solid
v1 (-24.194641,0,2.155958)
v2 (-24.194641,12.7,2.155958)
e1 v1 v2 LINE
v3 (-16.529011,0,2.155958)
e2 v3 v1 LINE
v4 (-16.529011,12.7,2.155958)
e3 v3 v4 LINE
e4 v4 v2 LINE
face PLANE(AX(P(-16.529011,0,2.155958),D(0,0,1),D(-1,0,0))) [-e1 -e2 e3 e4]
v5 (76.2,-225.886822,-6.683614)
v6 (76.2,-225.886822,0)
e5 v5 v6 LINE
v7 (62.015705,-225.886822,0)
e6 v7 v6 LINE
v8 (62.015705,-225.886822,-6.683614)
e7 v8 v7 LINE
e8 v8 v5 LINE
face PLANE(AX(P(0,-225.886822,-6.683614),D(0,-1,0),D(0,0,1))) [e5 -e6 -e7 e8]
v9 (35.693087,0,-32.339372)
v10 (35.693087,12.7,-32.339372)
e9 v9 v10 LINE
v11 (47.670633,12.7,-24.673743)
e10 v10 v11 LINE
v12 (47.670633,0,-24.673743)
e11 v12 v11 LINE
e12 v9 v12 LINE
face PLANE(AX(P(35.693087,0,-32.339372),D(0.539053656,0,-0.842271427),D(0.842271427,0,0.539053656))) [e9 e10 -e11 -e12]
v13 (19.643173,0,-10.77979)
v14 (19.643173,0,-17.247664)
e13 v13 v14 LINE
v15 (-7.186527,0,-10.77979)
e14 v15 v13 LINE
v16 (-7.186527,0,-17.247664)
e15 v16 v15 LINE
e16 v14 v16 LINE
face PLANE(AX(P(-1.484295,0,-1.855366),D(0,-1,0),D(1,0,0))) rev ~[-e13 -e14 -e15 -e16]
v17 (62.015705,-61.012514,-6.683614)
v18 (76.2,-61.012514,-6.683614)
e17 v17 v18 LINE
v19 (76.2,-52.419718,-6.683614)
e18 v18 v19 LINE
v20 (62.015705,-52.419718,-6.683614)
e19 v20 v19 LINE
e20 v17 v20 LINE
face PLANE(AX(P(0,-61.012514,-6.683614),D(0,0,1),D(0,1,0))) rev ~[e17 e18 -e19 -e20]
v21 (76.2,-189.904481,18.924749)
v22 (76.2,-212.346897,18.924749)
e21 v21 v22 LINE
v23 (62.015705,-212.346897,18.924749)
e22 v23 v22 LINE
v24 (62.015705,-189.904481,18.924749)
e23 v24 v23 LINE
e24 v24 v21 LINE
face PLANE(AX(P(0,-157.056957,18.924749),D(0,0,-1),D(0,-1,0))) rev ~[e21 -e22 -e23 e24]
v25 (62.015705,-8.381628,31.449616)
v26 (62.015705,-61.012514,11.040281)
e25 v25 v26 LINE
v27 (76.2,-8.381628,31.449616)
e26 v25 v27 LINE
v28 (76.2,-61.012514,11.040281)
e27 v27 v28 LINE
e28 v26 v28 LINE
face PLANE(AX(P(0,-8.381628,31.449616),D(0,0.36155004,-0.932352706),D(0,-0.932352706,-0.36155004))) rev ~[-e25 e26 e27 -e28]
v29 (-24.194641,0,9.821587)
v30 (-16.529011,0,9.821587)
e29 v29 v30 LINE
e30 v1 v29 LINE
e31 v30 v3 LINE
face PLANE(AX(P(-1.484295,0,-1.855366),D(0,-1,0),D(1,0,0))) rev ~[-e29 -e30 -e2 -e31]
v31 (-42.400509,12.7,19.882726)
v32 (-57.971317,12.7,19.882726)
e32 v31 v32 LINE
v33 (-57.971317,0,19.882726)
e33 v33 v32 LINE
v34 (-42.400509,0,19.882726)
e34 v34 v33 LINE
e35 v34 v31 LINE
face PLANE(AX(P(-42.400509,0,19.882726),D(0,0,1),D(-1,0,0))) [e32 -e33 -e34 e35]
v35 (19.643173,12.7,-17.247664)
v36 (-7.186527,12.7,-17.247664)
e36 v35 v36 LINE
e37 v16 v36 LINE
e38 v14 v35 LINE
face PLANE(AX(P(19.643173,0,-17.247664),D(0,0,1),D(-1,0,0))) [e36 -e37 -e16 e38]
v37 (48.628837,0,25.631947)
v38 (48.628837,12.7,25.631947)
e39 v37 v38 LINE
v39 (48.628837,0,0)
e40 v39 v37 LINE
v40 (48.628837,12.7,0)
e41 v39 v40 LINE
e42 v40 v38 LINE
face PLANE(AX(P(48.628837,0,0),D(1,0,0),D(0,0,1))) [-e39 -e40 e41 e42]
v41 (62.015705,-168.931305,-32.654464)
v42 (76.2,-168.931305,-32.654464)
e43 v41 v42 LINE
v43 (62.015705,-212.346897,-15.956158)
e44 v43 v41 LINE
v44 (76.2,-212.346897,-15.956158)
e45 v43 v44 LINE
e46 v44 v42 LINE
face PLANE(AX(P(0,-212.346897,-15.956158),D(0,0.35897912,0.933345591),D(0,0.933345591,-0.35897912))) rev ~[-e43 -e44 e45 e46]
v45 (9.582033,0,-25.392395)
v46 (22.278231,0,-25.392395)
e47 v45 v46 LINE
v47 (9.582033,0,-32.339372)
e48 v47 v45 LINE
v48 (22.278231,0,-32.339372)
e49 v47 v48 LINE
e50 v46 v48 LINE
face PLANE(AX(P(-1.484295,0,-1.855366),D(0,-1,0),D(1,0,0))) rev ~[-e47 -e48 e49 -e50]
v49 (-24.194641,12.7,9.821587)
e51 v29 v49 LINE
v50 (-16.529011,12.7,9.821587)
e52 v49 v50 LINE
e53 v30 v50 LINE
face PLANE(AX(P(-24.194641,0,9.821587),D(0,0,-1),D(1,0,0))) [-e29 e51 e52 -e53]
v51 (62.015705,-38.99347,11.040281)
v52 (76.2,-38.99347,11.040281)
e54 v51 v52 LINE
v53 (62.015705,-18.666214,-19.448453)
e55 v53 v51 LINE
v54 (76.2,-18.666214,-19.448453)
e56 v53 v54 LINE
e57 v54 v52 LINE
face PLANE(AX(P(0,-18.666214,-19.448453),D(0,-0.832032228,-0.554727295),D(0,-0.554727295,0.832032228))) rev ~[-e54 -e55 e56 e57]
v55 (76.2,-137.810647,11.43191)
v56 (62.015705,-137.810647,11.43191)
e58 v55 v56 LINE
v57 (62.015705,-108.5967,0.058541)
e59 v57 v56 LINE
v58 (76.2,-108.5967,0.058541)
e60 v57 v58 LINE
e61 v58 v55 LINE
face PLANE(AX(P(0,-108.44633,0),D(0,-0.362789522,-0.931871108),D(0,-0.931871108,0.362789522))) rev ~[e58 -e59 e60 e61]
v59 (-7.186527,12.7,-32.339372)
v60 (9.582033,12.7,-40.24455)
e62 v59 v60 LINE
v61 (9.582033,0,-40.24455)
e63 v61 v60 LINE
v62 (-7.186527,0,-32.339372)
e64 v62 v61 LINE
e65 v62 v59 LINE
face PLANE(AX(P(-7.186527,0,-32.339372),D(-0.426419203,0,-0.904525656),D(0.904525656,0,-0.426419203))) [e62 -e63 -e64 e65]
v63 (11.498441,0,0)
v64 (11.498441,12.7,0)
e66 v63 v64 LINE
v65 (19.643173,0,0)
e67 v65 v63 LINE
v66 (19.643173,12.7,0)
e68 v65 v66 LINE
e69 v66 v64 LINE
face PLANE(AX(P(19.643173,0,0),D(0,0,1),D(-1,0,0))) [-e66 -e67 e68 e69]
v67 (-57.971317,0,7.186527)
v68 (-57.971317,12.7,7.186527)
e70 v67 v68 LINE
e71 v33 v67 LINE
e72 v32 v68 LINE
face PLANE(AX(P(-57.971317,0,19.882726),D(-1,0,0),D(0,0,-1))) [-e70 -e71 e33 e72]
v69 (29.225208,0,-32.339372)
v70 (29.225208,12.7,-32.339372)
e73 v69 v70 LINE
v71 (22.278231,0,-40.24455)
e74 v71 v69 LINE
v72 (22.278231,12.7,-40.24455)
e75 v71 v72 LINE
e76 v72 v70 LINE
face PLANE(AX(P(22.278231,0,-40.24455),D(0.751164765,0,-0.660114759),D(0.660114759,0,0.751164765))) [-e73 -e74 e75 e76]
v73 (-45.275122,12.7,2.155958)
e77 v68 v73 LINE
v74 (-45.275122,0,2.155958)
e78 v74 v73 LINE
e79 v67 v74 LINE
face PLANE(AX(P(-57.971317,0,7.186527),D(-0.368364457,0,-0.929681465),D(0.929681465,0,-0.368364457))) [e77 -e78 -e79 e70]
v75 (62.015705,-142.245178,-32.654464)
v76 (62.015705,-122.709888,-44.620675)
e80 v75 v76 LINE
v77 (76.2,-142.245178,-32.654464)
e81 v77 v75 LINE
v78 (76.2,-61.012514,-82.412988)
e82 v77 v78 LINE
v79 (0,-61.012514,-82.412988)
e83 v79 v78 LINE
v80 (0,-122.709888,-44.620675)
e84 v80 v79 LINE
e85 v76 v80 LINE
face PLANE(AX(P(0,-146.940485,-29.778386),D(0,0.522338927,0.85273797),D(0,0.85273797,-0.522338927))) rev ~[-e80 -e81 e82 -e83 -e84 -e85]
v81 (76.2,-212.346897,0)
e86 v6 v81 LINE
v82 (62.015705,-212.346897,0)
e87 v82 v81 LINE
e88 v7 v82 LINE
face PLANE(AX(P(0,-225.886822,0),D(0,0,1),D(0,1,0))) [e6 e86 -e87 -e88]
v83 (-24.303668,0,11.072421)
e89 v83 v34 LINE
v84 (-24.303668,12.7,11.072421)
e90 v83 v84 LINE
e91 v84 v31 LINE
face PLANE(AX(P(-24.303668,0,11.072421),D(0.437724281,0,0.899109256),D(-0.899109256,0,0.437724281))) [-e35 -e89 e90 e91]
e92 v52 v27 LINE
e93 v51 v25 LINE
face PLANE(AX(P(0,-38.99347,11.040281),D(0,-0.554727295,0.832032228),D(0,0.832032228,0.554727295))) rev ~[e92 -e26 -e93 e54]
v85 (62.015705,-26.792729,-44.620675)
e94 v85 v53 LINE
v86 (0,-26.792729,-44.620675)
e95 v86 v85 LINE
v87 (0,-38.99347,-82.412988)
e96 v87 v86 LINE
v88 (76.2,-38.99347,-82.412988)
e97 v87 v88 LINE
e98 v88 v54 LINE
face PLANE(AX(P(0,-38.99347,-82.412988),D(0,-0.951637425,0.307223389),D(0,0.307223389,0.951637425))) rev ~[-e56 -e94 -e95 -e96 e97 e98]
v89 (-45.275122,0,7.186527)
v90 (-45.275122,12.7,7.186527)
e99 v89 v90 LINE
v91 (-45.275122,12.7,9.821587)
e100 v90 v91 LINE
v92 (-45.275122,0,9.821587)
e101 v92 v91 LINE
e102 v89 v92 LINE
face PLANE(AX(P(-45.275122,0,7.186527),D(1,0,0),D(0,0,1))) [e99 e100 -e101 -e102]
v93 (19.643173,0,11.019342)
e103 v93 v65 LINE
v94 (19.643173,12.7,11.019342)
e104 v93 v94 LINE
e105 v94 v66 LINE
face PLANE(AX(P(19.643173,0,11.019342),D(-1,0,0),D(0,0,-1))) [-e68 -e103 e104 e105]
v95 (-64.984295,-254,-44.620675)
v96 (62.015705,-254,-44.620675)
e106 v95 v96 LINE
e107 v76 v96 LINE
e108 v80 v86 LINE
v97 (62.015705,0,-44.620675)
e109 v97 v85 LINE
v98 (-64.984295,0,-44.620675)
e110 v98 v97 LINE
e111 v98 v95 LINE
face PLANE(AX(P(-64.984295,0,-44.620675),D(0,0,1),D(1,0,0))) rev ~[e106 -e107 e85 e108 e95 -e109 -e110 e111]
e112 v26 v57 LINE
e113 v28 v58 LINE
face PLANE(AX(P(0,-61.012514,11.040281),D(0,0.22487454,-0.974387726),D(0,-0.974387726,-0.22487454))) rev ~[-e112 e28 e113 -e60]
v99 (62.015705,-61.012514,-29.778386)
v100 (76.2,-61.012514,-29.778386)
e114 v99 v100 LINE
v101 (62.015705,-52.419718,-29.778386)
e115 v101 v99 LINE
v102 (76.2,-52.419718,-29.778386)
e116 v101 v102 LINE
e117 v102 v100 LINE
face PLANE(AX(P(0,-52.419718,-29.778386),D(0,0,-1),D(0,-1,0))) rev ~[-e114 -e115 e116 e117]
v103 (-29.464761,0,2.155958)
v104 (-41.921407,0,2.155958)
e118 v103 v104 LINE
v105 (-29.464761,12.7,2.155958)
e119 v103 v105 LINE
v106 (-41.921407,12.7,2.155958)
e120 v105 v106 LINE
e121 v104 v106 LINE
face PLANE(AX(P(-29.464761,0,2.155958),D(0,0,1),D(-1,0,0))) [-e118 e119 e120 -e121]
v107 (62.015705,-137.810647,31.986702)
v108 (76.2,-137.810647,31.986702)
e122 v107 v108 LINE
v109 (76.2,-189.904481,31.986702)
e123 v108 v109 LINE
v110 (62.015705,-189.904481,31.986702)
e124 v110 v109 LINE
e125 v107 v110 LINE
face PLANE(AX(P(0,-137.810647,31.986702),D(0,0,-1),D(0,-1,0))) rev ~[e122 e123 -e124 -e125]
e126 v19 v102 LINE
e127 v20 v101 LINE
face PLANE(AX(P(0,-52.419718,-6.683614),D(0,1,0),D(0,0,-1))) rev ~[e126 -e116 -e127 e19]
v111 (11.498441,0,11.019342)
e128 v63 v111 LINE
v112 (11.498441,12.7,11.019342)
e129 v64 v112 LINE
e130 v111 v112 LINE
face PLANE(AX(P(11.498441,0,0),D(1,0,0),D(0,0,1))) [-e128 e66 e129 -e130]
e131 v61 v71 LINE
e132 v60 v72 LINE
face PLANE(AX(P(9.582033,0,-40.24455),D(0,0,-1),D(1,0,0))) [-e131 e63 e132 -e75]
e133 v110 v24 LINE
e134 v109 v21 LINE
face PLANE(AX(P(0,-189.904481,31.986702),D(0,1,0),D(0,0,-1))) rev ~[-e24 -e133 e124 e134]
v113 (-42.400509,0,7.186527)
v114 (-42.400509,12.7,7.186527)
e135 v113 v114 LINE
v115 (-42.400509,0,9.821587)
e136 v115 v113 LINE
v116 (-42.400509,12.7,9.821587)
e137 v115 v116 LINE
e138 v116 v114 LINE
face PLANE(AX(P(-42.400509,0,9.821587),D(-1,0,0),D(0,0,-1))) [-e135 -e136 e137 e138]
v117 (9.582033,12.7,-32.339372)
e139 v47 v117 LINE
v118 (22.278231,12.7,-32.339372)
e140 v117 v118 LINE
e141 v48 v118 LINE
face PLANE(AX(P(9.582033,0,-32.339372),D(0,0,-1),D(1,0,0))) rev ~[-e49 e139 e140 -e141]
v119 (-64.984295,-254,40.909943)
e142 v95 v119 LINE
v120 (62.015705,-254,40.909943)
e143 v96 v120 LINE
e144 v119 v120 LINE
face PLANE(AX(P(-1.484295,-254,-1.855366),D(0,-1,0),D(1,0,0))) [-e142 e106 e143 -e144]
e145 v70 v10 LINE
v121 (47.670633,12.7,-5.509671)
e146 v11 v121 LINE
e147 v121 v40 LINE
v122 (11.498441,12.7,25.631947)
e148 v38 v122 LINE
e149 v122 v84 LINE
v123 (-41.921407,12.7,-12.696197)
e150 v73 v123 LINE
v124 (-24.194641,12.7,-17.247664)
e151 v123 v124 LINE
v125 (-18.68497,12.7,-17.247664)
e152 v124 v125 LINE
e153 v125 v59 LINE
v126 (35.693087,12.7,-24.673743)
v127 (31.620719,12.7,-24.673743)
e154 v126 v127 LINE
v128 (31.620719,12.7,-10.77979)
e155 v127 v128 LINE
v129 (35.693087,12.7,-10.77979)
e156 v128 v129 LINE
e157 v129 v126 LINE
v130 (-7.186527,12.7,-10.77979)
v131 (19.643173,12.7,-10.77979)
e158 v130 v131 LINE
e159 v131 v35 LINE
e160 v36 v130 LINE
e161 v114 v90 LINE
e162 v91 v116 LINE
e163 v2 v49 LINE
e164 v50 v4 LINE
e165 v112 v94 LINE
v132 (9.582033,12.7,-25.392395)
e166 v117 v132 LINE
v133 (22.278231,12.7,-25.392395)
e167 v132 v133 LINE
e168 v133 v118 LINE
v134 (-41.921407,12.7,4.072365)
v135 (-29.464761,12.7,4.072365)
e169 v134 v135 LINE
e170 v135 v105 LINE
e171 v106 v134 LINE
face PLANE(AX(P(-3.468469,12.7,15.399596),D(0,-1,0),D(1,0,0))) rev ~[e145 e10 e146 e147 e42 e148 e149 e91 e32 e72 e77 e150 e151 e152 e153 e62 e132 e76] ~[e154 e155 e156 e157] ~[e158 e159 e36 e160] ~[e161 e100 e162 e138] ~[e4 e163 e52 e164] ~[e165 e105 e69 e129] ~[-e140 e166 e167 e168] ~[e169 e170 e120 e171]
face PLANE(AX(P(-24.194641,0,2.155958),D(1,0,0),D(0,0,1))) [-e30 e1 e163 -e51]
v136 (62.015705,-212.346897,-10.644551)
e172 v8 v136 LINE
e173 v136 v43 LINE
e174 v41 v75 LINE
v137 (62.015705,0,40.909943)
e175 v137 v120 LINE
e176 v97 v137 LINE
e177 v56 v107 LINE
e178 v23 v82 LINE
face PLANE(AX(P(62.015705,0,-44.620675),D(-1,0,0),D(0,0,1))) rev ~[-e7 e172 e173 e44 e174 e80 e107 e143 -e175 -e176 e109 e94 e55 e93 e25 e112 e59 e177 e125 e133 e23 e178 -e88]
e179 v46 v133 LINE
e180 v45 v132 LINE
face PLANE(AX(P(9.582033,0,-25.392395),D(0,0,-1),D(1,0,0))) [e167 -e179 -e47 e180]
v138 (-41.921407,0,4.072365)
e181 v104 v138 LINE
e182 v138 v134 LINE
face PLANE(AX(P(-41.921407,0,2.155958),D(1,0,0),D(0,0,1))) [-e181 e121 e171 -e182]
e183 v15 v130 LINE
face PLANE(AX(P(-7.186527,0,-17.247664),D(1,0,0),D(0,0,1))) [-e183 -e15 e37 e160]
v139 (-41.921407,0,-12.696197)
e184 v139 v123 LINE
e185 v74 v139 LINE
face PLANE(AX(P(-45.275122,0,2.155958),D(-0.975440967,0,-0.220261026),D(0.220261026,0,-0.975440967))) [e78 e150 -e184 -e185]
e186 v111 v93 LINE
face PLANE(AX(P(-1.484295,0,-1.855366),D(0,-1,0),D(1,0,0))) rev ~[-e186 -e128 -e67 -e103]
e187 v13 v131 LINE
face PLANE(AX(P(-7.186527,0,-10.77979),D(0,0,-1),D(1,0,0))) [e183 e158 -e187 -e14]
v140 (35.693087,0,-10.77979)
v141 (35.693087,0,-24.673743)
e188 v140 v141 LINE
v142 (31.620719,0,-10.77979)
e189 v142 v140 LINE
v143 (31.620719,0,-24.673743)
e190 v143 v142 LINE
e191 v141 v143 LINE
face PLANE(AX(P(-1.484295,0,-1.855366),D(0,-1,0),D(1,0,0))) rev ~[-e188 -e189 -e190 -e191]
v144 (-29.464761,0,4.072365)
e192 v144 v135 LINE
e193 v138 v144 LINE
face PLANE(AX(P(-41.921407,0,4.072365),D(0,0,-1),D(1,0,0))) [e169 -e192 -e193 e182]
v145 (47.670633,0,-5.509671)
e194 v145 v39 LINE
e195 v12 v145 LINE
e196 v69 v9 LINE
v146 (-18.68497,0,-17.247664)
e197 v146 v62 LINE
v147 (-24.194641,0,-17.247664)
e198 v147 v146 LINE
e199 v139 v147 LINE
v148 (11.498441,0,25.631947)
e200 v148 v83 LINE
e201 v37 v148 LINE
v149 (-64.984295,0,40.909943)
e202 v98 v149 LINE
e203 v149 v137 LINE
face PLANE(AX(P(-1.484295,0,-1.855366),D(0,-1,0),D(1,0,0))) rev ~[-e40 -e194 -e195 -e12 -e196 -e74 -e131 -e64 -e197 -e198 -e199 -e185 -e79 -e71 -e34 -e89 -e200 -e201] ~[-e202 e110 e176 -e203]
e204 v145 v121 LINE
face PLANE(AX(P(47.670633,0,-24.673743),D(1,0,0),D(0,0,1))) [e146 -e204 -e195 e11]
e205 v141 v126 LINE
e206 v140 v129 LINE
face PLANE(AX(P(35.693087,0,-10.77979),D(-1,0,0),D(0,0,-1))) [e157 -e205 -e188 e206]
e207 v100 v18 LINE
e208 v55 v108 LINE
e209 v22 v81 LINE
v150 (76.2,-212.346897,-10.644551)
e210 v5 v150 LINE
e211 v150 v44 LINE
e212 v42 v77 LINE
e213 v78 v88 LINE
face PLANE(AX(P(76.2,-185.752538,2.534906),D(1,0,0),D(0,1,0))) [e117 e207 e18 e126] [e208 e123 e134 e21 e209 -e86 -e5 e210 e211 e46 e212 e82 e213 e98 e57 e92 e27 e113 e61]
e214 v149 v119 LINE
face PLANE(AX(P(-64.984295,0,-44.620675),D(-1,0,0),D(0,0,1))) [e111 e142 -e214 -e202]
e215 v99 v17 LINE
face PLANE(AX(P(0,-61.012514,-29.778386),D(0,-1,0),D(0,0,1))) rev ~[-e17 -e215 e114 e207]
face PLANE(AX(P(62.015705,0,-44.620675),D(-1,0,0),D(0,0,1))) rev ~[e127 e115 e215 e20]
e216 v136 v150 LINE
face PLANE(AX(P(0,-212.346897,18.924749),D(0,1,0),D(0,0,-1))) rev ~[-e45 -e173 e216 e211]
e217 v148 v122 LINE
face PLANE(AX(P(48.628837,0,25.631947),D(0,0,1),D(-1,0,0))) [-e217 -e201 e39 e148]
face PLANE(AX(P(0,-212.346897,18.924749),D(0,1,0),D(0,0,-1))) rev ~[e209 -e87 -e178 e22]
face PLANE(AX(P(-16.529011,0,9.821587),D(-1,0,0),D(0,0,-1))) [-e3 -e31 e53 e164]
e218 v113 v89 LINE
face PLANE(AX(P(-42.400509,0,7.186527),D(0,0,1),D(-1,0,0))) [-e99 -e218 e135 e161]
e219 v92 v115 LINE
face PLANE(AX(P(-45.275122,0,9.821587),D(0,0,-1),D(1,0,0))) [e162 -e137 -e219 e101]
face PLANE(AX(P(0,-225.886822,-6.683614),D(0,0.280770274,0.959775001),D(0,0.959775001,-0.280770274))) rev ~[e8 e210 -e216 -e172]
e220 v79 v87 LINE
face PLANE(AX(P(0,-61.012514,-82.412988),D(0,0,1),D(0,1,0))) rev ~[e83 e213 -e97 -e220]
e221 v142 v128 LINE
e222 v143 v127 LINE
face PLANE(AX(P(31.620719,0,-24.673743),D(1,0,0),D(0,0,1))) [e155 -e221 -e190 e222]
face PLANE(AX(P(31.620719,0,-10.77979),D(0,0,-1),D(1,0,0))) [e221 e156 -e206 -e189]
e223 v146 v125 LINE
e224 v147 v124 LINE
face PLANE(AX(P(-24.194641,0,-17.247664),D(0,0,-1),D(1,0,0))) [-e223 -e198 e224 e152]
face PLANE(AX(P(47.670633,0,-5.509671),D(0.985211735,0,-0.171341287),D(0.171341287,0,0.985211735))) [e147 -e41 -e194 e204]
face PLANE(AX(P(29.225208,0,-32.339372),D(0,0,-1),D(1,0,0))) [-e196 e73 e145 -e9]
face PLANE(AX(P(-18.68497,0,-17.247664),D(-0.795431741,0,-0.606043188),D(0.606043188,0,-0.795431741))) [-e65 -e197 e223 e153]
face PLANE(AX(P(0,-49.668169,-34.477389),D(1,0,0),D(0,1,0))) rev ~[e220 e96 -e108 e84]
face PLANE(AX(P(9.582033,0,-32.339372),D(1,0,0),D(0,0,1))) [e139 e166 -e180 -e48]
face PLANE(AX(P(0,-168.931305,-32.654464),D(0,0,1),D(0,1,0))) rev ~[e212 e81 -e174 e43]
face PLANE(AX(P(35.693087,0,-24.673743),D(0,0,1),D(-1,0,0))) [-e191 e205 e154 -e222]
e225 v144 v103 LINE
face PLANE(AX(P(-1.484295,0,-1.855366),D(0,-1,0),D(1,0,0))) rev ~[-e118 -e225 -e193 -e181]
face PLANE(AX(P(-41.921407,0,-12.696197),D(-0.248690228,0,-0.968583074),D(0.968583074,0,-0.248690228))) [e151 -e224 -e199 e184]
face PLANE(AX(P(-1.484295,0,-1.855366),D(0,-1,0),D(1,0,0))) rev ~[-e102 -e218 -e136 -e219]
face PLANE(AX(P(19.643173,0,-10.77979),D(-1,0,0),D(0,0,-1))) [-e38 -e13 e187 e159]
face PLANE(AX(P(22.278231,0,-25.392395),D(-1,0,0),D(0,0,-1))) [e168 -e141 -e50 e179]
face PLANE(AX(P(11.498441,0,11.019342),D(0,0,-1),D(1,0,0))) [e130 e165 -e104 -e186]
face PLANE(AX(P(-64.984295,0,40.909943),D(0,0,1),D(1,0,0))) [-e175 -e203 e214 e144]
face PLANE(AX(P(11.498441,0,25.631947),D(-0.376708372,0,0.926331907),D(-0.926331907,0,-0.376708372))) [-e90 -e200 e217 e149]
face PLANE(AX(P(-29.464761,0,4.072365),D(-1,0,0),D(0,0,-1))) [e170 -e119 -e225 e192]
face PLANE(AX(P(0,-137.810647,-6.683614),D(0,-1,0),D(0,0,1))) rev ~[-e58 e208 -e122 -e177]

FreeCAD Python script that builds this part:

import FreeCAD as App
import Part
import Sketcher
Q = App.Units.Quantity

doc = App.newDocument("Part")
params = doc.addObject("Spreadsheet::Sheet", "Params")
for row, (alias, value) in enumerate([
    ("sketch1_width", "5 in"),
    ("pad1_length", "10 in"),
    ("pad2_length", "3 in"),
    ("pad3_length", "0.5 in"),
    ("pad4_length", "3 in"),
], start=1):
    params.set(f"A{row}", alias)
    params.set(f"B{row}", "=" + value)
    params.setAlias(f"B{row}", alias)

body = doc.addObject("PartDesign::Body", "Body")

sketch1 = body.newObject("Sketcher::SketchObject", "Sketch")
sketch1.AttachmentSupport = (doc.getObject("XZ_Plane"), [""])
sketch1.MapMode = "FlatFace"
sketch1.addGeometry([
    Part.LineSegment(App.Vector(-65, 41, 0), App.Vector(-65, -45, 0)),
    Part.LineSegment(App.Vector(-65, -45, 0), App.Vector(62, -45, 0)),
    Part.LineSegment(App.Vector(62, -45, 0), App.Vector(62, 41, 0)),
    Part.LineSegment(App.Vector(62, 41, 0), App.Vector(-65, 41, 0)),
], False)
sketch1.addConstraint([
    Sketcher.Constraint("Coincident", 0, 2, 1, 1),
    Sketcher.Constraint("Coincident", 1, 2, 2, 1),
    Sketcher.Constraint("Coincident", 2, 2, 3, 1),
    Sketcher.Constraint("Coincident", 3, 2, 0, 1),
    Sketcher.Constraint("Vertical", 0),
    Sketcher.Constraint("Horizontal", 1),
    Sketcher.Constraint("Vertical", 2),
    Sketcher.Constraint("Horizontal", 3),
    Sketcher.Constraint("DistanceX", 1, 1, 1, 2, Q("5 in")),
    Sketcher.Constraint("DistanceY", 0, 2, 0, 1, Q("85.530619 mm")),
    Sketcher.Constraint("DistanceX", 0, 2, -1, 1, Q("64.984295 mm")),
    Sketcher.Constraint("DistanceY", 0, 2, -1, 1, Q("44.620675 mm")),
])
sketch1.setExpression("Constraints[8]", "Params.sketch1_width")
pad1 = body.newObject("PartDesign::Pad", "Pad")
pad1.Profile = sketch1
pad1.setExpression("Length", "Params.pad1_length")

sketch2 = body.newObject("Sketcher::SketchObject", "Sketch001")
sketch2.AttachmentSupport = (doc.getObject("YZ_Plane"), [""])
sketch2.MapMode = "FlatFace"
sketch2.addGeometry([
    Part.LineSegment(App.Vector(-169, -33, 0), App.Vector(-108, -33, 0)),
    Part.LineSegment(App.Vector(-108, -33, 0), App.Vector(-64, -22, 0)),
    Part.LineSegment(App.Vector(-64, -22, 0), App.Vector(-64, -9, 0)),
    Part.LineSegment(App.Vector(-64, -9, 0), App.Vector(-108, 0, 0)),
    Part.LineSegment(App.Vector(-108, 0, 0), App.Vector(-157, 19, 0)),
    Part.LineSegment(App.Vector(-157, 19, 0), App.Vector(-212, 19, 0)),
    Part.LineSegment(App.Vector(-212, 19, 0), App.Vector(-212, -16, 0)),
    Part.LineSegment(App.Vector(-212, -16, 0), App.Vector(-169, -33, 0)),
    Part.LineSegment(App.Vector(-108, -9, 0), App.Vector(-108, -22, 0)),
    Part.LineSegment(App.Vector(-108, -22, 0), App.Vector(-117, -22, 0)),
    Part.LineSegment(App.Vector(-117, -22, 0), App.Vector(-117, -9, 0)),
    Part.LineSegment(App.Vector(-117, -9, 0), App.Vector(-108, -9, 0)),
    Part.LineSegment(App.Vector(-169, -16, 0), App.Vector(-169, 0, 0)),
    Part.LineSegment(App.Vector(-169, 0, 0), App.Vector(-157, 0, 0)),
    Part.LineSegment(App.Vector(-157, 0, 0), App.Vector(-157, -16, 0)),
    Part.LineSegment(App.Vector(-157, -16, 0), App.Vector(-169, -16, 0)),
], False)
sketch2.addConstraint([
    Sketcher.Constraint("Coincident", 0, 2, 1, 1),
    Sketcher.Constraint("Coincident", 1, 2, 2, 1),
    Sketcher.Constraint("Coincident", 2, 2, 3, 1),
    Sketcher.Constraint("Coincident", 3, 2, 4, 1),
    Sketcher.Constraint("Coincident", 4, 2, 5, 1),
    Sketcher.Constraint("Coincident", 5, 2, 6, 1),
    Sketcher.Constraint("Coincident", 6, 2, 7, 1),
    Sketcher.Constraint("Coincident", 7, 2, 0, 1),
    Sketcher.Constraint("Coincident", 8, 2, 9, 1),
    Sketcher.Constraint("Coincident", 9, 2, 10, 1),
    Sketcher.Constraint("Coincident", 10, 2, 11, 1),
    Sketcher.Constraint("Coincident", 11, 2, 8, 1),
    Sketcher.Constraint("Coincident", 12, 2, 13, 1),
    Sketcher.Constraint("Coincident", 13, 2, 14, 1),
    Sketcher.Constraint("Coincident", 14, 2, 15, 1),
    Sketcher.Constraint("Coincident", 15, 2, 12, 1),
    Sketcher.Constraint("Horizontal", 0),
    Sketcher.Constraint("Vertical", 2),
    Sketcher.Constraint("Horizontal", 5),
    Sketcher.Constraint("Vertical", 6),
    Sketcher.Constraint("Vertical", 8),
    Sketcher.Constraint("Horizontal", 9),
    Sketcher.Constraint("Vertical", 10),
    Sketcher.Constraint("Horizontal", 11),
    Sketcher.Constraint("Vertical", 12),
    Sketcher.Constraint("Horizontal", 13),
    Sketcher.Constraint("Vertical", 14),
    Sketcher.Constraint("Horizontal", 15),
    Sketcher.Constraint("PointOnObject", 3, 2, -1),
    Sketcher.Constraint("PointOnObject", 12, 2, -1),
    Sketcher.Constraint("Horizontal", 1, 2, 8, 2),
    Sketcher.Constraint("Horizontal", 2, 2, 10, 2),
    Sketcher.Constraint("Horizontal", 6, 2, 14, 2),
    Sketcher.Constraint("Vertical", 0, 2, 3, 2),
    Sketcher.Constraint("Vertical", 3, 2, 8, 2),
    Sketcher.Constraint("Vertical", 7, 2, 12, 2),
    Sketcher.Constraint("Vertical", 4, 2, 13, 2),
    Sketcher.Constraint("DistanceX", 5, 2, 5, 1, Q("55.289939 mm")),
    Sketcher.Constraint("DistanceY", 2, 1, 2, 2, Q("12.987572 mm")),
    Sketcher.Constraint("Distance", 4, Q("52.16454 mm")),
    Sketcher.Constraint("DistanceX", 0, 1, 0, 2, Q("60.484976 mm")),
    Sketcher.Constraint("DistanceX", 9, 2, 9, 1, Q("8.534685 mm")),
    Sketcher.Constraint("DistanceX", 13, 1, 13, 2, Q("11.874348 mm")),
    Sketcher.Constraint("DistanceY", 6, 2, 6, 1, Q("34.880906 mm")),
    Sketcher.Constraint("DistanceX", 0, 2, -1, 1, Q("108.44633 mm")),
    Sketcher.Constraint("DistanceY", 2, 2, -1, 1, Q("8.905762 mm")),
    Sketcher.Constraint("DistanceY", 0, 2, 1, 2, Q("10.761131 mm")),
    Sketcher.Constraint("DistanceX", 4, 2, 2, 2, Q("92.768371 mm")),
])
pad2 = body.newObject("PartDesign::Pad", "Pad001")
pad2.Profile = sketch2
pad2.setExpression("Length", "Params.pad2_length")

sketch3 = body.newObject("Sketcher::SketchObject", "Sketch002")
sketch3.AttachmentSupport = (doc.getObject("XZ_Plane"), [""])
sketch3.MapMode = "FlatFace"
sketch3.addGeometry([
    Part.LineSegment(App.Vector(9.6, -40.2, 0), App.Vector(22.3, -40.2, 0)),
    Part.LineSegment(App.Vector(22.3, -40.2, 0), App.Vector(29.2, -32.3, 0)),
    Part.LineSegment(App.Vector(29.2, -32.3, 0), App.Vector(35.7, -32.3, 0)),
    Part.LineSegment(App.Vector(35.7, -32.3, 0), App.Vector(47.7, -24.7, 0)),
    Part.LineSegment(App.Vector(47.7, -24.7, 0), App.Vector(47.7, -5.5, 0)),
    Part.LineSegment(App.Vector(47.7, -5.5, 0), App.Vector(48.6, 0, 0)),
    Part.LineSegment(App.Vector(48.6, 0, 0), App.Vector(48.6, 25.6, 0)),
    Part.LineSegment(App.Vector(48.6, 25.6, 0), App.Vector(11.5, 25.6, 0)),
    Part.LineSegment(App.Vector(11.5, 25.6, 0), App.Vector(-24.3, 11.1, 0)),
    Part.LineSegment(App.Vector(-24.3, 11.1, 0), App.Vector(-42.4, 19.9, 0)),
    Part.LineSegment(App.Vector(-42.4, 19.9, 0), App.Vector(-58, 19.9, 0)),
    Part.LineSegment(App.Vector(-58, 19.9, 0), App.Vector(-58, 7.2, 0)),
    Part.LineSegment(App.Vector(-58, 7.2, 0), App.Vector(-45.3, 2.2, 0)),
    Part.LineSegment(App.Vector(-45.3, 2.2, 0), App.Vector(-41.9, -12.7, 0)),
    Part.LineSegment(App.Vector(-41.9, -12.7, 0), App.Vector(-24.2, -17.2, 0)),
    Part.LineSegment(App.Vector(-24.2, -17.2, 0), App.Vector(-18.7, -17.2, 0)),
    Part.LineSegment(App.Vector(-18.7, -17.2, 0), App.Vector(-7.2, -32.3, 0)),
    Part.LineSegment(App.Vector(-7.2, -32.3, 0), App.Vector(9.6, -40.2, 0)),
    Part.LineSegment(App.Vector(22.3, -25.4, 0), App.Vector(22.3, -32.3, 0)),
    Part.LineSegment(App.Vector(22.3, -32.3, 0), App.Vector(9.6, -32.3, 0)),
    Part.LineSegment(App.Vector(9.6, -32.3, 0), App.Vector(9.6, -25.4, 0)),
    Part.LineSegment(App.Vector(9.6, -25.4, 0), App.Vector(22.3, -25.4, 0)),
    Part.LineSegment(App.Vector(19.6, -17.2, 0), App.Vector(-7.2, -17.2, 0)),
    Part.LineSegment(App.Vector(-7.2, -17.2, 0), App.Vector(-7.2, -10.8, 0)),
    Part.LineSegment(App.Vector(-7.2, -10.8, 0), App.Vector(19.6, -10.8, 0)),
    Part.LineSegment(App.Vector(19.6, -10.8, 0), App.Vector(19.6, -17.2, 0)),
    Part.LineSegment(App.Vector(35.7, -10.8, 0), App.Vector(35.7, -24.7, 0)),
    Part.LineSegment(App.Vector(35.7, -24.7, 0), App.Vector(31.6, -24.7, 0)),
    Part.LineSegment(App.Vector(31.6, -24.7, 0), App.Vector(31.6, -10.8, 0)),
    Part.LineSegment(App.Vector(31.6, -10.8, 0), App.Vector(35.7, -10.8, 0)),
    Part.LineSegment(App.Vector(-29.5, 2.2, 0), App.Vector(-41.9, 2.2, 0)),
    Part.LineSegment(App.Vector(-41.9, 2.2, 0), App.Vector(-41.9, 4.1, 0)),
    Part.LineSegment(App.Vector(-41.9, 4.1, 0), App.Vector(-29.5, 4.1, 0)),
    Part.LineSegment(App.Vector(-29.5, 4.1, 0), App.Vector(-29.5, 2.2, 0)),
    Part.LineSegment(App.Vector(-42.4, 7.2, 0), App.Vector(-45.3, 7.2, 0)),
    Part.LineSegment(App.Vector(-45.3, 7.2, 0), App.Vector(-45.3, 9.8, 0)),
    Part.LineSegment(App.Vector(-45.3, 9.8, 0), App.Vector(-42.4, 9.8, 0)),
    Part.LineSegment(App.Vector(-42.4, 9.8, 0), App.Vector(-42.4, 7.2, 0)),
    Part.LineSegment(App.Vector(-16.5, 2.2, 0), App.Vector(-24.2, 2.2, 0)),
    Part.LineSegment(App.Vector(-24.2, 2.2, 0), App.Vector(-24.2, 9.8, 0)),
    Part.LineSegment(App.Vector(-24.2, 9.8, 0), App.Vector(-16.5, 9.8, 0)),
    Part.LineSegment(App.Vector(-16.5, 9.8, 0), App.Vector(-16.5, 2.2, 0)),
    Part.LineSegment(App.Vector(19.6, 11, 0), App.Vector(19.6, 0, 0)),
    Part.LineSegment(App.Vector(19.6, 0, 0), App.Vector(11.5, 0, 0)),
    Part.LineSegment(App.Vector(11.5, 0, 0), App.Vector(11.5, 11, 0)),
    Part.LineSegment(App.Vector(11.5, 11, 0), App.Vector(19.6, 11, 0)),
], False)
sketch3.addConstraint([
    Sketcher.Constraint("Coincident", 0, 2, 1, 1),
    Sketcher.Constraint("Coincident", 1, 2, 2, 1),
    Sketcher.Constraint("Coincident", 2, 2, 3, 1),
    Sketcher.Constraint("Coincident", 3, 2, 4, 1),
    Sketcher.Constraint("Coincident", 4, 2, 5, 1),
    Sketcher.Constraint("Coincident", 5, 2, 6, 1),
    Sketcher.Constraint("Coincident", 6, 2, 7, 1),
    Sketcher.Constraint("Coincident", 7, 2, 8, 1),
    Sketcher.Constraint("Coincident", 8, 2, 9, 1),
    Sketcher.Constraint("Coincident", 9, 2, 10, 1),
    Sketcher.Constraint("Coincident", 10, 2, 11, 1),
    Sketcher.Constraint("Coincident", 11, 2, 12, 1),
    Sketcher.Constraint("Coincident", 12, 2, 13, 1),
    Sketcher.Constraint("Coincident", 13, 2, 14, 1),
    Sketcher.Constraint("Coincident", 14, 2, 15, 1),
    Sketcher.Constraint("Coincident", 15, 2, 16, 1),
    Sketcher.Constraint("Coincident", 16, 2, 17, 1),
    Sketcher.Constraint("Coincident", 17, 2, 0, 1),
    Sketcher.Constraint("Coincident", 18, 2, 19, 1),
    Sketcher.Constraint("Coincident", 19, 2, 20, 1),
    Sketcher.Constraint("Coincident", 20, 2, 21, 1),
    Sketcher.Constraint("Coincident", 21, 2, 18, 1),
    Sketcher.Constraint("Coincident", 22, 2, 23, 1),
    Sketcher.Constraint("Coincident", 23, 2, 24, 1),
    Sketcher.Constraint("Coincident", 24, 2, 25, 1),
    Sketcher.Constraint("Coincident", 25, 2, 22, 1),
    Sketcher.Constraint("Coincident", 26, 2, 27, 1),
    Sketcher.Constraint("Coincident", 27, 2, 28, 1),
    Sketcher.Constraint("Coincident", 28, 2, 29, 1),
    Sketcher.Constraint("Coincident", 29, 2, 26, 1),
    Sketcher.Constraint("Coincident", 30, 2, 31, 1),
    Sketcher.Constraint("Coincident", 31, 2, 32, 1),
    Sketcher.Constraint("Coincident", 32, 2, 33, 1),
    Sketcher.Constraint("Coincident", 33, 2, 30, 1),
    Sketcher.Constraint("Coincident", 34, 2, 35, 1),
    Sketcher.Constraint("Coincident", 35, 2, 36, 1),
    Sketcher.Constraint("Coincident", 36, 2, 37, 1),
    Sketcher.Constraint("Coincident", 37, 2, 34, 1),
    Sketcher.Constraint("Coincident", 38, 2, 39, 1),
    Sketcher.Constraint("Coincident", 39, 2, 40, 1),
    Sketcher.Constraint("Coincident", 40, 2, 41, 1),
    Sketcher.Constraint("Coincident", 41, 2, 38, 1),
    Sketcher.Constraint("Coincident", 42, 2, 43, 1),
    Sketcher.Constraint("Coincident", 43, 2, 44, 1),
    Sketcher.Constraint("Coincident", 44, 2, 45, 1),
    Sketcher.Constraint("Coincident", 45, 2, 42, 1),
    Sketcher.Constraint("Horizontal", 0),
    Sketcher.Constraint("Horizontal", 2),
    Sketcher.Constraint("Vertical", 4),
    Sketcher.Constraint("Vertical", 6),
    Sketcher.Constraint("Horizontal", 7),
    Sketcher.Constraint("Horizontal", 10),
    Sketcher.Constraint("Vertical", 11),
    Sketcher.Constraint("Horizontal", 15),
    Sketcher.Constraint("Vertical", 18),
    Sketcher.Constraint("Horizontal", 19),
    Sketcher.Constraint("Vertical", 20),
    Sketcher.Constraint("Horizontal", 21),
    Sketcher.Constraint("Horizontal", 22),
    Sketcher.Constraint("Vertical", 23),
    Sketcher.Constraint("Horizontal", 24),
    Sketcher.Constraint("Vertical", 25),
    Sketcher.Constraint("Vertical", 26),
    Sketcher.Constraint("Horizontal", 27),
    Sketcher.Constraint("Vertical", 28),
    Sketcher.Constraint("Horizontal", 29),
    Sketcher.Constraint("Horizontal", 30),
    Sketcher.Constraint("Vertical", 31),
    Sketcher.Constraint("Horizontal", 32),
    Sketcher.Constraint("Vertical", 33),
    Sketcher.Constraint("Horizontal", 34),
    Sketcher.Constraint("Vertical", 35),
    Sketcher.Constraint("Horizontal", 36),
    Sketcher.Constraint("Vertical", 37),
    Sketcher.Constraint("Horizontal", 38),
    Sketcher.Constraint("Vertical", 39),
    Sketcher.Constraint("Horizontal", 40),
    Sketcher.Constraint("Vertical", 41),
    Sketcher.Constraint("Vertical", 42),
    Sketcher.Constraint("Horizontal", 43),
    Sketcher.Constraint("Vertical", 44),
    Sketcher.Constraint("Horizontal", 45),
    Sketcher.Constraint("PointOnObject", 5, 2, -1),
    Sketcher.Constraint("PointOnObject", 42, 2, -1),
    Sketcher.Constraint("Horizontal", 2, 2, 16, 2),
    Sketcher.Constraint("Horizontal", 16, 2, 18, 2),
    Sketcher.Constraint("Horizontal", 15, 2, 22, 2),
    Sketcher.Constraint("Horizontal", 3, 2, 26, 2),
    Sketcher.Constraint("Horizontal", 24, 2, 28, 2),
    Sketcher.Constraint("Horizontal", 12, 2, 30, 2),
    Sketcher.Constraint("Horizontal", 11, 2, 34, 2),
    Sketcher.Constraint("Horizontal", 33, 2, 38, 2),
    Sketcher.Constraint("Horizontal", 36, 2, 39, 2),
    Sketcher.Constraint("Vertical", 0, 2, 18, 2),
    Sketcher.Constraint("Vertical", 17, 2, 19, 2),
    Sketcher.Constraint("Vertical", 16, 2, 22, 2),
    Sketcher.Constraint("Vertical", 2, 2, 26, 2),
    Sketcher.Constraint("Vertical", 13, 2, 30, 2),
    Sketcher.Constraint("Vertical", 12, 2, 34, 2),
    Sketcher.Constraint("Vertical", 9, 2, 36, 2),
    Sketcher.Constraint("Vertical", 14, 2, 38, 2),
    Sketcher.Constraint("Vertical", 25, 2, 42, 2),
    Sketcher.Constraint("Vertical", 7, 2, 43, 2),
    Sketcher.Constraint("Equal", 21, 11),
    Sketcher.Constraint("Equal", 40, 39),
    Sketcher.Constraint("DistanceX", 22, 2, 22, 1, Q("26.8297 mm")),
    Sketcher.Constraint("DistanceY", 11, 2, 11, 1, Q("12.696198 mm")),
    Sketcher.Constraint("Distance", 12, Q("13.6565 mm")),
    Sketcher.Constraint("DistanceX", 2, 1, 2, 2, Q("6.467879 mm")),
    Sketcher.Constraint("DistanceX", 10, 2, 10, 1, Q("15.570808 mm")),
    Sketcher.Constraint("DistanceX", 15, 1, 15, 2, Q("5.509671 mm")),
    Sketcher.Constraint("DistanceX", 27, 2, 27, 1, Q("4.072368 mm")),
    Sketcher.Constraint("DistanceX", 38, 2, 38, 1, Q("7.66563 mm")),
    Sketcher.Constraint("DistanceX", 43, 2, 43, 1, Q("8.144732 mm")),
    Sketcher.Constraint("DistanceY", 35, 1, 35, 2, Q("2.63506 mm")),
    Sketcher.Constraint("DistanceY", 42, 2, 42, 1, Q("11.019342 mm")),
    Sketcher.Constraint("DistanceX", 0, 2, 3, 2, Q("25.392402 mm")),
    Sketcher.Constraint("DistanceY", 2, 2, 4, 2, Q("26.829701 mm")),
    Sketcher.Constraint("DistanceX", 8, 2, 0, 2, Q("46.581899 mm")),
    Sketcher.Constraint("Distance", 3, Q("14.22053 mm")),
    Sketcher.Constraint("Distance", 8, Q("38.649332 mm")),
    Sketcher.Constraint("Distance", 9, Q("20.127522 mm")),
    Sketcher.Constraint("Distance", 14, Q("18.301751 mm")),
    Sketcher.Constraint("DistanceX", 7, 2, 7, 1, Q("37.130396 mm")),
    Sketcher.Constraint("DistanceX", 30, 2, 30, 1, Q("12.456646 mm")),
    Sketcher.Constraint("DistanceY", 4, 1, 4, 2, Q("19.164072 mm")),
    Sketcher.Constraint("DistanceY", 6, 1, 6, 2, Q("25.631947 mm")),
    Sketcher.Constraint("DistanceY", 18, 2, 18, 1, Q("6.946977 mm")),
    Sketcher.Constraint("DistanceY", 23, 1, 23, 2, Q("6.467874 mm")),
    Sketcher.Constraint("DistanceY", 26, 2, 26, 1, Q("13.893954 mm")),
    Sketcher.Constraint("DistanceY", 31, 1, 31, 2, Q("1.916407 mm")),
    Sketcher.Constraint("DistanceX", -1, 1, 0, 2, Q("22.278231 mm")),
    Sketcher.Constraint("DistanceY", 0, 2, -1, 1, Q("40.24455 mm")),
    Sketcher.Constraint("DistanceY", 1, 2, -1, 1, Q("32.339372 mm")),
    Sketcher.Constraint("DistanceX", -1, 1, 7, 2, Q("11.498441 mm")),
    Sketcher.Constraint("DistanceX", 9, 2, -1, 1, Q("42.400509 mm")),
    Sketcher.Constraint("DistanceX", 14, 2, -1, 1, Q("24.194641 mm")),
    Sketcher.Constraint("DistanceX", 32, 2, -1, 1, Q("29.464761 mm")),
])
pad3 = body.newObject("PartDesign::Pad", "Pad002")
pad3.Profile = sketch3
pad3.setExpression("Length", "Params.pad3_length")
pad3.Reversed = True

sketch4 = body.newObject("Sketcher::SketchObject", "Sketch003")
sketch4.AttachmentSupport = (doc.getObject("YZ_Plane"), [""])
sketch4.MapMode = "FlatFace"
sketch4.addGeometry([
    Part.LineSegment(App.Vector(-146.9, -29.8, 0), App.Vector(-61, -82.4, 0)),
    Part.LineSegment(App.Vector(-61, -82.4, 0), App.Vector(-39, -82.4, 0)),
    Part.LineSegment(App.Vector(-39, -82.4, 0), App.Vector(-18.7, -19.4, 0)),
    Part.LineSegment(App.Vector(-18.7, -19.4, 0), App.Vector(-39, 11, 0)),
    Part.LineSegment(App.Vector(-39, 11, 0), App.Vector(-8.4, 31.4, 0)),
    Part.LineSegment(App.Vector(-8.4, 31.4, 0), App.Vector(-61, 11, 0)),
    Part.LineSegment(App.Vector(-61, 11, 0), App.Vector(-137.8, -6.7, 0)),
    Part.LineSegment(App.Vector(-137.8, -6.7, 0), App.Vector(-137.8, 32, 0)),
    Part.LineSegment(App.Vector(-137.8, 32, 0), App.Vector(-189.9, 32, 0)),
    Part.LineSegment(App.Vector(-189.9, 32, 0), App.Vector(-189.9, 0, 0)),
    Part.LineSegment(App.Vector(-189.9, 0, 0), App.Vector(-225.9, 0, 0)),
    Part.LineSegment(App.Vector(-225.9, 0, 0), App.Vector(-225.9, -6.7, 0)),
    Part.LineSegment(App.Vector(-225.9, -6.7, 0), App.Vector(-189.9, -17.2, 0)),
    Part.LineSegment(App.Vector(-189.9, -17.2, 0), App.Vector(-189.9, -18.5, 0)),
    Part.LineSegment(App.Vector(-189.9, -18.5, 0), App.Vector(-185.5, -18.5, 0)),
    Part.LineSegment(App.Vector(-185.5, -18.5, 0), App.Vector(-146.9, -29.8, 0)),
    Part.LineSegment(App.Vector(-52.4, -29.8, 0), App.Vector(-61, -29.8, 0)),
    Part.LineSegment(App.Vector(-61, -29.8, 0), App.Vector(-61, -6.7, 0)),
    Part.LineSegment(App.Vector(-61, -6.7, 0), App.Vector(-52.4, -6.7, 0)),
    Part.LineSegment(App.Vector(-52.4, -6.7, 0), App.Vector(-52.4, -29.8, 0)),
], False)
sketch4.addConstraint([
    Sketcher.Constraint("Coincident", 0, 2, 1, 1),
    Sketcher.Constraint("Coincident", 1, 2, 2, 1),
    Sketcher.Constraint("Coincident", 2, 2, 3, 1),
    Sketcher.Constraint("Coincident", 3, 2, 4, 1),
    Sketcher.Constraint("Coincident", 4, 2, 5, 1),
    Sketcher.Constraint("Coincident", 5, 2, 6, 1),
    Sketcher.Constraint("Coincident", 6, 2, 7, 1),
    Sketcher.Constraint("Coincident", 7, 2, 8, 1),
    Sketcher.Constraint("Coincident", 8, 2, 9, 1),
    Sketcher.Constraint("Coincident", 9, 2, 10, 1),
    Sketcher.Constraint("Coincident", 10, 2, 11, 1),
    Sketcher.Constraint("Coincident", 11, 2, 12, 1),
    Sketcher.Constraint("Coincident", 12, 2, 13, 1),
    Sketcher.Constraint("Coincident", 13, 2, 14, 1),
    Sketcher.Constraint("Coincident", 14, 2, 15, 1),
    Sketcher.Constraint("Coincident", 15, 2, 0, 1),
    Sketcher.Constraint("Coincident", 16, 2, 17, 1),
    Sketcher.Constraint("Coincident", 17, 2, 18, 1),
    Sketcher.Constraint("Coincident", 18, 2, 19, 1),
    Sketcher.Constraint("Coincident", 19, 2, 16, 1),
    Sketcher.Constraint("Horizontal", 1),
    Sketcher.Constraint("Vertical", 7),
    Sketcher.Constraint("Horizontal", 8),
    Sketcher.Constraint("Vertical", 9),
    Sketcher.Constraint("Horizontal", 10),
    Sketcher.Constraint("Vertical", 11),
    Sketcher.Constraint("Vertical", 13),
    Sketcher.Constraint("Horizontal", 14),
    Sketcher.Constraint("Horizontal", 16),
    Sketcher.Constraint("Vertical", 17),
    Sketcher.Constraint("Horizontal", 18),
    Sketcher.Constraint("Vertical", 19),
    Sketcher.Constraint("PointOnObject", 9, 2, -1),
    Sketcher.Constraint("Perpendicular", 3, 4),
    Sketcher.Constraint("Parallel", 12, 15),
    Sketcher.Constraint("Horizontal", 3, 2, 5, 2),
    Sketcher.Constraint("Horizontal", 6, 2, 11, 2),
    Sketcher.Constraint("Horizontal", 15, 2, 16, 2),
    Sketcher.Constraint("Horizontal", 11, 2, 17, 2),
    Sketcher.Constraint("Vertical", 1, 2, 3, 2),
    Sketcher.Constraint("Vertical", 0, 2, 5, 2),
    Sketcher.Constraint("Vertical", 9, 2, 12, 2),
    Sketcher.Constraint("Vertical", 5, 2, 16, 2),
    Sketcher.Constraint("DistanceX", 10, 2, 10, 1, Q("35.982341 mm")),
    Sketcher.Constraint("DistanceY", 13, 2, 13, 1, Q("1.289741 mm")),
    Sketcher.Constraint("DistanceY", 17, 1, 17, 2, Q("23.094772 mm")),
    Sketcher.Constraint("DistanceY", 12, 2, -1, 1, Q("17.209801 mm")),
    Sketcher.Constraint("DistanceX", 0, 2, 2, 2, Q("42.3463 mm")),
    Sketcher.Constraint("Distance", 6, Q("78.816811 mm")),
    Sketcher.Constraint("Distance", 12, Q("37.490392 mm")),
    Sketcher.Constraint("DistanceX", 1, 1, 1, 2, Q("22.019044 mm")),
    Sketcher.Constraint("DistanceX", 8, 2, 8, 1, Q("52.093834 mm")),
    Sketcher.Constraint("DistanceX", 14, 1, 14, 2, Q("4.408804 mm")),
    Sketcher.Constraint("DistanceX", 16, 2, 16, 1, Q("8.592796 mm")),
    Sketcher.Constraint("DistanceY", 7, 1, 7, 2, Q("38.670316 mm")),
    Sketcher.Constraint("DistanceX", 1, 2, -1, 1, Q("38.99347 mm")),
    Sketcher.Constraint("DistanceY", -1, 1, 3, 2, Q("11.040281 mm")),
    Sketcher.Constraint("DistanceY", 1, 2, 3, 2, Q("93.453269 mm")),
    Sketcher.Constraint("DistanceY", 2, 2, 4, 2, Q("50.898069 mm")),
    Sketcher.Constraint("DistanceY", 2, 2, 6, 2, Q("12.764839 mm")),
])
pad4 = body.newObject("PartDesign::Pad", "Pad003")
pad4.Profile = sketch4
pad4.setExpression("Length", "Params.pad4_length")

doc.recompute()
